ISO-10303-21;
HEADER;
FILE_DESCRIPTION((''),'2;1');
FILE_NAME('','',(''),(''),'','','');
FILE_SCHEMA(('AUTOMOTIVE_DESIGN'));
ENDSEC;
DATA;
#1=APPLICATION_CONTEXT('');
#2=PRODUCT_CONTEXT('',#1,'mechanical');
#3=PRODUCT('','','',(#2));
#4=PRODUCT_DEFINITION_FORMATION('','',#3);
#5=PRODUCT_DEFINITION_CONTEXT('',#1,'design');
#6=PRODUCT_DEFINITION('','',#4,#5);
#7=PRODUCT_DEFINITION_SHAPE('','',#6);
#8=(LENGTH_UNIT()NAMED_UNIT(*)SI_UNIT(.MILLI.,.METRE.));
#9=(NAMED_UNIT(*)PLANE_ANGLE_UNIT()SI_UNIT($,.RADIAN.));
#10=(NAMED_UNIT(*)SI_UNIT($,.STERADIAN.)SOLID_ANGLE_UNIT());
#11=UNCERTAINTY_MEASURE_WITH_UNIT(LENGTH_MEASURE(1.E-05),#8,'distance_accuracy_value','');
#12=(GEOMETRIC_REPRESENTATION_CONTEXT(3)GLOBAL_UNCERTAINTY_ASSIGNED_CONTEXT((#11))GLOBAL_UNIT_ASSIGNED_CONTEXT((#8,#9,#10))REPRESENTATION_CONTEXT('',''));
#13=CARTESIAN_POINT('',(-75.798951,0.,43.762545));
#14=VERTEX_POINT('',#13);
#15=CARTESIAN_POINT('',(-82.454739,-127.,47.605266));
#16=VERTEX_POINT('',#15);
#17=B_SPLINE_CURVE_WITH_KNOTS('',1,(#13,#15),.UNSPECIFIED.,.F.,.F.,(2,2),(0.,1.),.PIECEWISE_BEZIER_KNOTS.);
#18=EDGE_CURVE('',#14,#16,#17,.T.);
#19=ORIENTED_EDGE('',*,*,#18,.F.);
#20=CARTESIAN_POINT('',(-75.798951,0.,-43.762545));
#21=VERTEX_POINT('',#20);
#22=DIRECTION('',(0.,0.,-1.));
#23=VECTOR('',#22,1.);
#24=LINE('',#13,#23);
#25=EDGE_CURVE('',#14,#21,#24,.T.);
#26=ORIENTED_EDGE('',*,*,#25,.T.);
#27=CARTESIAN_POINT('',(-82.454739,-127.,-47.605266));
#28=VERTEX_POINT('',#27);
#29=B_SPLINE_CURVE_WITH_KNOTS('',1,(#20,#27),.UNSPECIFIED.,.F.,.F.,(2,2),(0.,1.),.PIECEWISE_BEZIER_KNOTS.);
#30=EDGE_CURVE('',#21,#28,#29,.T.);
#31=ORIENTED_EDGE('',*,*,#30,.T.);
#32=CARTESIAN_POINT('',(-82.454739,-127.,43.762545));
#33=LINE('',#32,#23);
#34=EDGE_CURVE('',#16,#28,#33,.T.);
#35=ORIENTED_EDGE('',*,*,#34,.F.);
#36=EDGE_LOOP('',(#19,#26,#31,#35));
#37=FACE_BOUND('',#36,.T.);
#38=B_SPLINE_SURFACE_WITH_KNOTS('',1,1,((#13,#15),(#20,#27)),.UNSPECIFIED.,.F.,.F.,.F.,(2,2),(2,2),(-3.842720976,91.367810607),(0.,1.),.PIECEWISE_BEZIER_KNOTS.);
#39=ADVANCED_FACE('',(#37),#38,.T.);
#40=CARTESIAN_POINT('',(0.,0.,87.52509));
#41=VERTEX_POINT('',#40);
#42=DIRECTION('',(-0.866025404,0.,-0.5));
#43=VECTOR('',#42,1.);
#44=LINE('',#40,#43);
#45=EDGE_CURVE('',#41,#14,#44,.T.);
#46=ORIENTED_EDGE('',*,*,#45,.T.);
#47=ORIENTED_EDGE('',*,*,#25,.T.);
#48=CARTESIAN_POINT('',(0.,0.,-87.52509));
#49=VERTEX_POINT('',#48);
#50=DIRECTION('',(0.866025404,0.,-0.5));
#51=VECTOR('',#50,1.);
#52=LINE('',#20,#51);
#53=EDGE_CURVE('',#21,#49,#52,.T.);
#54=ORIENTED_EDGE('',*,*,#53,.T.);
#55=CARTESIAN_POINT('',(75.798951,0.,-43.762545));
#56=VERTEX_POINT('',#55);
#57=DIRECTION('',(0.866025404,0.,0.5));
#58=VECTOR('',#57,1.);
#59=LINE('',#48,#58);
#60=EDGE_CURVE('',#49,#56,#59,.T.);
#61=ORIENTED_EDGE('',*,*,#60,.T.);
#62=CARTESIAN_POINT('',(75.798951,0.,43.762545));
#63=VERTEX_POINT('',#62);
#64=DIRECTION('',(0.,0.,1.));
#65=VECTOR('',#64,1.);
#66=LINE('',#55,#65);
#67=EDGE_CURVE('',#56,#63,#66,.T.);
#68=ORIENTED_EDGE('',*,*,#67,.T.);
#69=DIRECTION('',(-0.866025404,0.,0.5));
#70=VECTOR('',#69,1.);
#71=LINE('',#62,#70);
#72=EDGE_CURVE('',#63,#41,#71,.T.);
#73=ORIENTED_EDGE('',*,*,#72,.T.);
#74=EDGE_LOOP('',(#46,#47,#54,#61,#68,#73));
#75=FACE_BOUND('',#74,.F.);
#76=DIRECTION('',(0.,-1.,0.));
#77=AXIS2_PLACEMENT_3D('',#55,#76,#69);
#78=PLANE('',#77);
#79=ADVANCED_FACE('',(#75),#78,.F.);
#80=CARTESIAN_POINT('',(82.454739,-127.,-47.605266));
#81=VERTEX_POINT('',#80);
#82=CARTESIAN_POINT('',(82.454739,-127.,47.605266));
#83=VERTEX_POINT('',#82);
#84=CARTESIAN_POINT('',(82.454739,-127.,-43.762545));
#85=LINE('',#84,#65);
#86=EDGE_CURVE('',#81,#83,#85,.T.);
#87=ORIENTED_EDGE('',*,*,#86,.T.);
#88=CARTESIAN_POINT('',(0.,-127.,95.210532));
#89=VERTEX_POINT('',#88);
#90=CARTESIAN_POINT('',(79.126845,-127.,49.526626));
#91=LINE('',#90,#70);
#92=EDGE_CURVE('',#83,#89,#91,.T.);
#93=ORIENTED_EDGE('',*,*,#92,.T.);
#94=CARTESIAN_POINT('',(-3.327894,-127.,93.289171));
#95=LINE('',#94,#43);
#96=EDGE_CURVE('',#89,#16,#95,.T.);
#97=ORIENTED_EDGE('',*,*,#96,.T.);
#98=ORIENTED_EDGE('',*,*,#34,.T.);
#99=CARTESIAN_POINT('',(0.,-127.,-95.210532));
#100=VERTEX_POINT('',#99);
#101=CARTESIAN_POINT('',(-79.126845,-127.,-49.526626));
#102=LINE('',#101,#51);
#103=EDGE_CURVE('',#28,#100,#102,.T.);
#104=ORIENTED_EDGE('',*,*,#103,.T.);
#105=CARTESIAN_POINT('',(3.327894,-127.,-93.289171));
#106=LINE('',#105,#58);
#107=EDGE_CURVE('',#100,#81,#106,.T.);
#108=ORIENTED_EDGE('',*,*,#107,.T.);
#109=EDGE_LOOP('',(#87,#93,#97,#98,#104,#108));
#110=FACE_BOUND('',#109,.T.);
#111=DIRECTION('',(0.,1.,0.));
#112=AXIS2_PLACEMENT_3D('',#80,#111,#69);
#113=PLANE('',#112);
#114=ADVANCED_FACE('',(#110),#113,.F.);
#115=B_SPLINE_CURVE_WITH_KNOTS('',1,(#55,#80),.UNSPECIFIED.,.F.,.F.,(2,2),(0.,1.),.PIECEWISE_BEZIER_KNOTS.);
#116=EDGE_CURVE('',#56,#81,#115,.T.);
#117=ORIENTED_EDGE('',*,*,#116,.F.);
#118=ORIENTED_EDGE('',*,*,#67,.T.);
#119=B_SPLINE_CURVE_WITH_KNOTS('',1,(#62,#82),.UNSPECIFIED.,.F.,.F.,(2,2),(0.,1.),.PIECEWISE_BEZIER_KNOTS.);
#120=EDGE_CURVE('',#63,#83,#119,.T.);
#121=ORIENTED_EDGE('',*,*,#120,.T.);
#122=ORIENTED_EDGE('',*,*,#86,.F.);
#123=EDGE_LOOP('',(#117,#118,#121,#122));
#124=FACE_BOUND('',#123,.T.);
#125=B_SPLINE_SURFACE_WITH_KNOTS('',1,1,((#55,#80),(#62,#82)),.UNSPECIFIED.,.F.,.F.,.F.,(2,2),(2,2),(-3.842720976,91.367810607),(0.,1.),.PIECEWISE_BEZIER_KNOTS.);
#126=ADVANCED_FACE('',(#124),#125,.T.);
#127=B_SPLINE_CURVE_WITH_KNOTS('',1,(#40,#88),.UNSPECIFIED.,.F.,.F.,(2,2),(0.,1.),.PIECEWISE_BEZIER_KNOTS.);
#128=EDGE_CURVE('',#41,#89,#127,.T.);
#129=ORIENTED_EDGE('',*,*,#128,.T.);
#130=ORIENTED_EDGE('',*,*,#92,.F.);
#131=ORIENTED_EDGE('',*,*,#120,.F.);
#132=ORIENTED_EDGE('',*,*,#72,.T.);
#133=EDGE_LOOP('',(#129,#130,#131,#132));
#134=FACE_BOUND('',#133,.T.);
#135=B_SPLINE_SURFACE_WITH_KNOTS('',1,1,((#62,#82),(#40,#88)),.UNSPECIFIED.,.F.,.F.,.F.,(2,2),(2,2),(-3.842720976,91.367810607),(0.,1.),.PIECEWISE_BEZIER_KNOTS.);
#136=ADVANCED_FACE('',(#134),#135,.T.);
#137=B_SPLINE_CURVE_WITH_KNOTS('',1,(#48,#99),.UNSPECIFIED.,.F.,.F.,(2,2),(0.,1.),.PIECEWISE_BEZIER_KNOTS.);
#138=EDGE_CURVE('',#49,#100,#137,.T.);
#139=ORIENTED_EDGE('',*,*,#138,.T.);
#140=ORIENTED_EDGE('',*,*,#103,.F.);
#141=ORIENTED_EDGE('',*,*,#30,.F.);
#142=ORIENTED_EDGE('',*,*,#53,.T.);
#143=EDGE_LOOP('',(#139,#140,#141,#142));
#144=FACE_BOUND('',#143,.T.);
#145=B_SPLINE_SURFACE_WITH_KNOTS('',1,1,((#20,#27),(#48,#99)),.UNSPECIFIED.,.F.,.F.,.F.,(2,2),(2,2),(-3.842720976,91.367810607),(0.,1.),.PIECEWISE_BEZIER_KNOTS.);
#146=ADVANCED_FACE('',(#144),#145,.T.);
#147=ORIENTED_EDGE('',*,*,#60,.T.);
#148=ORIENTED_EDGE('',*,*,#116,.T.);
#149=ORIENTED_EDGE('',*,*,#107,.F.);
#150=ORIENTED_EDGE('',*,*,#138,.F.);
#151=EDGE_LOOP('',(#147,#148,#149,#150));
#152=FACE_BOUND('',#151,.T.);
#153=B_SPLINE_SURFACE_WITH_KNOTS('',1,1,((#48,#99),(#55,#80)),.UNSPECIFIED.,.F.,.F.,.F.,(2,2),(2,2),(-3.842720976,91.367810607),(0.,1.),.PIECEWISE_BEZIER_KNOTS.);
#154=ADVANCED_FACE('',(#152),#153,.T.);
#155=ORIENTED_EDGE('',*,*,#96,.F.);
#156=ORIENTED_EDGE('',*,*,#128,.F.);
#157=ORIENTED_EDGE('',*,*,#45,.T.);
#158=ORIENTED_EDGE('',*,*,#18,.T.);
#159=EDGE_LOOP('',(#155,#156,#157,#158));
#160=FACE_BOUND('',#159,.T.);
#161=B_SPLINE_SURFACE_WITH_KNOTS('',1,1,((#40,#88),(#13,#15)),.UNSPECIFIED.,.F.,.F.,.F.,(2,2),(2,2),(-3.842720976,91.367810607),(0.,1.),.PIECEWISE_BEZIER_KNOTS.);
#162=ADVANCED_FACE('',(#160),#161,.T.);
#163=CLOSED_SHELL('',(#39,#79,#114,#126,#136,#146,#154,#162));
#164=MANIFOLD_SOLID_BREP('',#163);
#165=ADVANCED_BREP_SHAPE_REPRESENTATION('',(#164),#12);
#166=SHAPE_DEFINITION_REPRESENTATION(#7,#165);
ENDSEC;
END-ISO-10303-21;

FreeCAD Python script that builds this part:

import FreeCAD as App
import Part
import Sketcher
from FreeCAD import Vector
Q = App.Units.Quantity

doc = App.newDocument("Part")
body = doc.addObject("PartDesign::Body", "Body")

# Sketch on XZ plane
sketch1 = body.newObject("Sketcher::SketchObject", "Sketch")
sketch1.AttachmentSupport = (doc.getObject("XZ_Plane"), [""])
sketch1.MapMode = "FlatFace"
sketch1.addGeometry(Part.LineSegment(Vector(75.798951, -43.762545, 0), Vector(75.798951, 43.762545, 0)), False)
sketch1.addGeometry(Part.LineSegment(Vector(75.798951, 43.762545, 0), Vector(0, 87.52509, 0)), False)
sketch1.addGeometry(Part.LineSegment(Vector(0, 87.52509, 0), Vector(-75.798951, 43.762545, 0)), False)
sketch1.addGeometry(Part.LineSegment(Vector(-75.798951, 43.762545, 0), Vector(-75.798951, -43.762545, 0)), False)
sketch1.addGeometry(Part.LineSegment(Vector(-75.798951, -43.762545, 0), Vector(0, -87.52509, 0)), False)
sketch1.addGeometry(Part.LineSegment(Vector(0, -87.52509, 0), Vector(75.798951, -43.762545, 0)), False)
sketch1.addConstraint(Sketcher.Constraint("Coincident", 0, 2, 1, 1))
sketch1.addConstraint(Sketcher.Constraint("Coincident", 1, 2, 2, 1))
sketch1.addConstraint(Sketcher.Constraint("Coincident", 2, 2, 3, 1))
sketch1.addConstraint(Sketcher.Constraint("Coincident", 3, 2, 4, 1))
sketch1.addConstraint(Sketcher.Constraint("Coincident", 4, 2, 5, 1))
sketch1.addConstraint(Sketcher.Constraint("Coincident", 5, 2, 0, 1))
sketch1.addConstraint(Sketcher.Constraint("Vertical", 0))
sketch1.addConstraint(Sketcher.Constraint("Vertical", 3))
sketch1.addConstraint(Sketcher.Constraint("Symmetric", 0, 2, 3, 2, -1, 1))
sketch1.addConstraint(Sketcher.Constraint("Symmetric", 1, 2, 4, 2, -1, 1))
sketch1.addConstraint(Sketcher.Constraint("PointOnObject", 1, 2, -2))
sketch1.addConstraint(Sketcher.Constraint("Parallel", 2, 5))
sketch1.addConstraint(Sketcher.Constraint("Horizontal", 0, 2, 2, 2))
sketch1.addConstraint(Sketcher.Constraint("Angle", 1, Q("150 deg")))
sketch1.addConstraint(Sketcher.Constraint("DistanceY", 0, 1, 0, 2, 87.52509))
sketch1.addConstraint(Sketcher.Constraint("Distance", 1, 87.52509))
pad1 = body.newObject("PartDesign::Pad", "Pad")
pad1.Profile = sketch1
pad1.Length = Q("5 in")
pad1.TaperAngle = 3

doc.recompute()
